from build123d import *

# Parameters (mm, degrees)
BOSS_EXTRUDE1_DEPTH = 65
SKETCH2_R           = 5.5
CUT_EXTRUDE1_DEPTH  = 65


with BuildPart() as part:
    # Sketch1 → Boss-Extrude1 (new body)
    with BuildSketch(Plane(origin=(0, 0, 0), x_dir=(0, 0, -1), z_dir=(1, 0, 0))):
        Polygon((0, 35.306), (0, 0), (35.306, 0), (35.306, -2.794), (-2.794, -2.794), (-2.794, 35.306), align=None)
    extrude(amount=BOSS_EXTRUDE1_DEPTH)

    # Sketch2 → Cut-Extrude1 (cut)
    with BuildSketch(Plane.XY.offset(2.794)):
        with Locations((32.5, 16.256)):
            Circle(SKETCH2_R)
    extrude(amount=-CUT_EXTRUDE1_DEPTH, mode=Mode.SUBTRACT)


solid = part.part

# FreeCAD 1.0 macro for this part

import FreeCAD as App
import Part
import Sketcher
Q = App.Units.Quantity

doc = App.newDocument("Part")
body = doc.addObject("PartDesign::Body", "Body")

# Sketch on YZ plane
sketch1 = doc.addObject("Sketcher::SketchObject", "Sketch")
body.addObject(sketch1)
sketch1.AttachmentSupport = (doc.YZ_Plane, [""])
sketch1.MapMode = "FlatFace"
sketch1.addGeometry(Part.LineSegment(App.Vector(0, 0, 0), App.Vector(35.3, 0, 0)), False)
sketch1.addGeometry(Part.LineSegment(App.Vector(35.3, 0, 0), App.Vector(35.3, 2.8, 0)), False)
sketch1.addGeometry(Part.LineSegment(App.Vector(35.3, 2.8, 0), App.Vector(-2.8, 2.8, 0)), False)
sketch1.addGeometry(Part.LineSegment(App.Vector(-2.8, 2.8, 0), App.Vector(-2.8, -35.3, 0)), False)
sketch1.addGeometry(Part.LineSegment(App.Vector(-2.8, -35.3, 0), App.Vector(0, -35.3, 0)), False)
sketch1.addGeometry(Part.LineSegment(App.Vector(0, -35.3, 0), App.Vector(0, 0, 0)), False)
sketch1.addConstraint(Sketcher.Constraint("Coincident", 0, 2, 1, 1))
sketch1.addConstraint(Sketcher.Constraint("Coincident", 1, 2, 2, 1))
sketch1.addConstraint(Sketcher.Constraint("Coincident", 2, 2, 3, 1))
sketch1.addConstraint(Sketcher.Constraint("Coincident", 3, 2, 4, 1))
sketch1.addConstraint(Sketcher.Constraint("Coincident", 4, 2, 5, 1))
sketch1.addConstraint(Sketcher.Constraint("Coincident", 5, 2, 0, 1))
sketch1.addConstraint(Sketcher.Constraint("Horizontal", 0))
sketch1.addConstraint(Sketcher.Constraint("Vertical", 1))
sketch1.addConstraint(Sketcher.Constraint("Horizontal", 2))
sketch1.addConstraint(Sketcher.Constraint("Vertical", 3))
sketch1.addConstraint(Sketcher.Constraint("Horizontal", 4))
sketch1.addConstraint(Sketcher.Constraint("Vertical", 5))
sketch1.addConstraint(Sketcher.Constraint("Coincident", 5, 2, -1, 1))
sketch1.addConstraint(Sketcher.Constraint("Equal", 4, 1))
sketch1.addConstraint(Sketcher.Constraint("Equal", 2, 3))
sketch1.addConstraint(Sketcher.Constraint("DistanceX", 2, 2, 2, 1, Q("1.5 in")))
sketch1.addConstraint(Sketcher.Constraint("DistanceX", 0, 1, 0, 2, Q("1.39 in")))
pad1 = doc.addObject("PartDesign::Pad", "Pad")
body.addObject(pad1)
pad1.Profile = sketch1
pad1.Length = 65

# Sketch on XY plane
sketch2 = doc.addObject("Sketcher::SketchObject", "Sketch001")
body.addObject(sketch2)
sketch2.AttachmentSupport = (doc.XY_Plane, [""])
sketch2.MapMode = "FlatFace"
sketch2.AttachmentOffset = App.Placement(App.Vector(0, 0, 0.11 * 25.4), App.Rotation())
sketch2.addGeometry(Part.Circle(App.Vector(32, 16, 0), App.Vector(0, 0, 1), 6), False)
sketch2.addConstraint(Sketcher.Constraint("Diameter", 0, 11.0))
sketch2.addConstraint(Sketcher.Constraint("DistanceY", -1, 1, 0, 3, Q("0.64 in")))
sketch2.addConstraint(Sketcher.Constraint("DistanceX", -1, 1, 0, 3, 32.5))
pocket1 = doc.addObject("PartDesign::Pocket", "Pocket")
body.addObject(pocket1)
pocket1.Profile = sketch2
pocket1.Length = 65

doc.recompute()
